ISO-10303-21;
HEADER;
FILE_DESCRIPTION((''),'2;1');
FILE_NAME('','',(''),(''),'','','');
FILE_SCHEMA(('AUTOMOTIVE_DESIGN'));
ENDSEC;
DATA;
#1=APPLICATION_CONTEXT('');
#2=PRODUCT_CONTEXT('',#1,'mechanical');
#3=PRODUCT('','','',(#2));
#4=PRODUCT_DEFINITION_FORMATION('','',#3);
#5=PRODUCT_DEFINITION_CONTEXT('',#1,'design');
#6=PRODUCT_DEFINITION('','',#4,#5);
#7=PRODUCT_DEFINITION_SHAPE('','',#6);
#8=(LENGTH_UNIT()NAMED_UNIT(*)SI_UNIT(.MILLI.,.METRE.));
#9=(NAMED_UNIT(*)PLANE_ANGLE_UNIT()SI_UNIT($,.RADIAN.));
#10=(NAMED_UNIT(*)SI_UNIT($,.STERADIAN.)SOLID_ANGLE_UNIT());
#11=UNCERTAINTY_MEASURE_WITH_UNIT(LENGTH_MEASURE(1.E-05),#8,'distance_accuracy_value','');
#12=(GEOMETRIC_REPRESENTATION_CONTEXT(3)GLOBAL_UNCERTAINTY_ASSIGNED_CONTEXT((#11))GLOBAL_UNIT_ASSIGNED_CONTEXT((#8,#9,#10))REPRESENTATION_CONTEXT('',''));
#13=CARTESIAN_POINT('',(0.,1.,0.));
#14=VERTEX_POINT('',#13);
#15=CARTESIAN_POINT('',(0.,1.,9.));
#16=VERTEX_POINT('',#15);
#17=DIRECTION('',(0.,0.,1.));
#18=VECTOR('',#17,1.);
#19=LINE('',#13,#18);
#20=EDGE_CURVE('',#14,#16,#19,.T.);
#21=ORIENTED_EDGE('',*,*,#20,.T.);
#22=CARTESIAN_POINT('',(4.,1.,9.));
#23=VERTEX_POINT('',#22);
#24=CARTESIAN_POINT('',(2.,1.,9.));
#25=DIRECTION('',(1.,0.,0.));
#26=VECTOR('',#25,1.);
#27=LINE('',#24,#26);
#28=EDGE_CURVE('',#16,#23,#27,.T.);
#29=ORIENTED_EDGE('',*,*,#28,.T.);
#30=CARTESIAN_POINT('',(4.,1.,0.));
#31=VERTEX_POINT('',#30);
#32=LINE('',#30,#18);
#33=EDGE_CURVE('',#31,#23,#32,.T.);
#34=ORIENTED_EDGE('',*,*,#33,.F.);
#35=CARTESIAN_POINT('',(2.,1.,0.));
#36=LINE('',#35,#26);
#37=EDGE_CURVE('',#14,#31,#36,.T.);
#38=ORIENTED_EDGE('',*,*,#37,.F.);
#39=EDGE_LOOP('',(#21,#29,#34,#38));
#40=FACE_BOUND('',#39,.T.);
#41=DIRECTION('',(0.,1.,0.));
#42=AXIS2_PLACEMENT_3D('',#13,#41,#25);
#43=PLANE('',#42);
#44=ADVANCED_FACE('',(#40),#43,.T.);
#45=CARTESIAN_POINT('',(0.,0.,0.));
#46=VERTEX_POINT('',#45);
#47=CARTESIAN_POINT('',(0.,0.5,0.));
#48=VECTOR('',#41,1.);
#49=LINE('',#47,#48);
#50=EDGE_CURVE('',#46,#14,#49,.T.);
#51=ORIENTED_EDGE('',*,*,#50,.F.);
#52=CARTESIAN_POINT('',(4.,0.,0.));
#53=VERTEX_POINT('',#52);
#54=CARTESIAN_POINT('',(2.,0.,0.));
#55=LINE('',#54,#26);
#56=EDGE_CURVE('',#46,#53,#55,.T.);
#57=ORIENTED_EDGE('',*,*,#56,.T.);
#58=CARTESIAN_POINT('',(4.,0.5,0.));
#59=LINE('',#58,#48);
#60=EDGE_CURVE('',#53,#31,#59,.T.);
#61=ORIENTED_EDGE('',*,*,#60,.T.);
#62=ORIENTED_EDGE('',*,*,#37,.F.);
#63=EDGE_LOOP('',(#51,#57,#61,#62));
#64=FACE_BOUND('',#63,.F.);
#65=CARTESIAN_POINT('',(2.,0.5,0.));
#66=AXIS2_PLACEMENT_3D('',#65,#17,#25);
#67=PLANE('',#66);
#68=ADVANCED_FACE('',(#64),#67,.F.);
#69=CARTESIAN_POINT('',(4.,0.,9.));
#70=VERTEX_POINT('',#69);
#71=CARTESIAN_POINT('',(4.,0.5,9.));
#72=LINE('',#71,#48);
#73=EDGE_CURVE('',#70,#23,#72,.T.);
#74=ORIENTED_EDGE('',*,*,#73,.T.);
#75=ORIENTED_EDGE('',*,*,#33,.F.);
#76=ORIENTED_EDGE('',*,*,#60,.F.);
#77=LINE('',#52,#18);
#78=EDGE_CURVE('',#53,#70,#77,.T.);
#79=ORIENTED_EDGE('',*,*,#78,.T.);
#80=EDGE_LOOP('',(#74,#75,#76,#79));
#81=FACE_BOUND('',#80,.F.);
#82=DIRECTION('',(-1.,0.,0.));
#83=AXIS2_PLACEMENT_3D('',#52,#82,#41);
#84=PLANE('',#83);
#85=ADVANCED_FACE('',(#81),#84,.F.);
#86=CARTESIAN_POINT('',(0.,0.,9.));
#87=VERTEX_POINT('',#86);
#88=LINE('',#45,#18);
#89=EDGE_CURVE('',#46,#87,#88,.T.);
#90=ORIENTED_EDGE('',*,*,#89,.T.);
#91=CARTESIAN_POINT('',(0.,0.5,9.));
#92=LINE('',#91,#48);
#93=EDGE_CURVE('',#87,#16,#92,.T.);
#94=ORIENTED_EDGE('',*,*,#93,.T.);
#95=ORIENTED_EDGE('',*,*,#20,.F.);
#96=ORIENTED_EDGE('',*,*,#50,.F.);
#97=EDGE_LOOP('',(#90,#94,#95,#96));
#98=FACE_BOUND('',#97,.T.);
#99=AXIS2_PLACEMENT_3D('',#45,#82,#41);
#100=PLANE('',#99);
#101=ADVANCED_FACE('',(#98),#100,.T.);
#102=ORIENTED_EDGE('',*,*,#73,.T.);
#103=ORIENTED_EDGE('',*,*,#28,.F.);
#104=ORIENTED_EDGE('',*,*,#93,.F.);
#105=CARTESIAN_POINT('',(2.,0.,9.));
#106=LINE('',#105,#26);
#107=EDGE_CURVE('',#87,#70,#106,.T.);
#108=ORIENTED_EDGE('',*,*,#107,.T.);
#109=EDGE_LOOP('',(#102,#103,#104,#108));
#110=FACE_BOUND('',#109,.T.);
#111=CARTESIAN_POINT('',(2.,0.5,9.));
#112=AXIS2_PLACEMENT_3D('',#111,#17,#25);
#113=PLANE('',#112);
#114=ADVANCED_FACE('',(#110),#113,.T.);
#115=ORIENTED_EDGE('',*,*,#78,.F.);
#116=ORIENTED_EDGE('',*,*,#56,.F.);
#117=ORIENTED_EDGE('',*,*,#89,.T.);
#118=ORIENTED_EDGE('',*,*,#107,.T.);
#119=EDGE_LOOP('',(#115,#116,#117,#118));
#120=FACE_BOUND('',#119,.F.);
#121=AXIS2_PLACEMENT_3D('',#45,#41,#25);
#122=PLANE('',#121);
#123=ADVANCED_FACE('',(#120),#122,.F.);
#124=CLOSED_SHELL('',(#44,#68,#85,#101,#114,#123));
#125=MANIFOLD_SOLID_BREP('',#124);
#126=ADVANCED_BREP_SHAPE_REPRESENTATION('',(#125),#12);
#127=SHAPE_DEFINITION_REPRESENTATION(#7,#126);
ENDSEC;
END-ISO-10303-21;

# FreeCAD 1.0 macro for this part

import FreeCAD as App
import Part
import Sketcher
Q = App.Units.Quantity


def add_polygon(sketch, points):
    """Adds a closed chain of lines whose ends are joined by coincident constraints."""
    first, n = sketch.GeometryCount, len(points)
    for a, b in zip(points, points[1:] + points[:1]):
        sketch.addGeometry(Part.LineSegment(App.Vector(*a, 0), App.Vector(*b, 0)), False)
    for i in range(n):
        sketch.addConstraint(Sketcher.Constraint("Coincident", first + i, 2, first + (i + 1) % n, 1))

doc = App.newDocument("Part")
body = doc.addObject("PartDesign::Body", "Body")

sketch1 = doc.addObject("Sketcher::SketchObject", "Sketch")
body.addObject(sketch1)
sketch1.AttachmentSupport = (doc.XY_Plane, [""])
sketch1.MapMode = "FlatFace"
add_polygon(sketch1, [(0, 1), (0, 0), (4, 0), (4, 1)])
sketch1.addConstraint([
    Sketcher.Constraint("Vertical", 0),
    Sketcher.Constraint("Horizontal", 1),
    Sketcher.Constraint("Vertical", 2),
    Sketcher.Constraint("Horizontal", 3),
    Sketcher.Constraint("Coincident", 0, 2, -1, 1),
    Sketcher.Constraint("DistanceX", 1, 1, 1, 2, Q("4 mm")),
    Sketcher.Constraint("DistanceY", 0, 2, 0, 1, Q("1 mm")),
])
pad1 = doc.addObject("PartDesign::Pad", "Pad")
body.addObject(pad1)
pad1.Profile = sketch1
pad1.Length = 9

doc.recompute()
